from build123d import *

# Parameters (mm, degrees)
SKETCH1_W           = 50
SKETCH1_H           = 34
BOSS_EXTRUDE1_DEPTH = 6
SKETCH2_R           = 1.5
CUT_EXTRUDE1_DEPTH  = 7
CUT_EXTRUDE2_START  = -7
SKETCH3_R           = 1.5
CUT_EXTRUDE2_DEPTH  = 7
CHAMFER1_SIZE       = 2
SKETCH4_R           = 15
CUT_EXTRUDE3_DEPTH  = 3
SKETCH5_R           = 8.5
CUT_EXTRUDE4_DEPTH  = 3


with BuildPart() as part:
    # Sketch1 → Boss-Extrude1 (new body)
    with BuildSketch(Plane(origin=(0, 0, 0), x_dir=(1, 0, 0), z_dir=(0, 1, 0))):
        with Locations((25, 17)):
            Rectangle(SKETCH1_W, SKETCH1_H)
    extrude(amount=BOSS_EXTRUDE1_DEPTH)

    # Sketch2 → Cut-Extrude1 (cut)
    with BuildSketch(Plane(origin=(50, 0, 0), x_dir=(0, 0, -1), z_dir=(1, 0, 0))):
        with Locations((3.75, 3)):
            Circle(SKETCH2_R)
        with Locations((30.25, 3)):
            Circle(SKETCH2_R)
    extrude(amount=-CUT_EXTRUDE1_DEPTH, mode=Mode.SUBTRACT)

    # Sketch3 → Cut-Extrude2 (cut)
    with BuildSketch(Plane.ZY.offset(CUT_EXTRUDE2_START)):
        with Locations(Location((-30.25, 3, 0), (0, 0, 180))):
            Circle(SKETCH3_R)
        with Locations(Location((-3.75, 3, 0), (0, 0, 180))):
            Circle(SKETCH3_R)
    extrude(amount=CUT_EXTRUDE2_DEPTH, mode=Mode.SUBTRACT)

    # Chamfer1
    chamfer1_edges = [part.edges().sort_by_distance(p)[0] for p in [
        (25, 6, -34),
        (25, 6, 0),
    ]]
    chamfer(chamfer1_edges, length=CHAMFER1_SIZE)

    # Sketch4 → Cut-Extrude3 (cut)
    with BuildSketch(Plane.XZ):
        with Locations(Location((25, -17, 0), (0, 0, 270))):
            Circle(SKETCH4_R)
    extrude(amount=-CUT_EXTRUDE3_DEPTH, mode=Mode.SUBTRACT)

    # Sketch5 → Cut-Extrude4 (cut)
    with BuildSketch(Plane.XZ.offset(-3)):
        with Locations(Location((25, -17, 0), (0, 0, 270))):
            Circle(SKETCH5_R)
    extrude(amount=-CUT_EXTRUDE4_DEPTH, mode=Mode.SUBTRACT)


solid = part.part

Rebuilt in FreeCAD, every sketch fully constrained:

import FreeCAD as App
import Part
import Sketcher

V = App.Vector
Q = App.Units.Quantity


def edges_at(feature, points):
    """Names of the edges that pass closest to the given points."""
    edges = feature.Shape.Edges
    near = lambda p: min(range(len(edges)), key=lambda i: edges[i].distToShape(Part.Vertex(*p))[0])
    return sorted({f"Edge{near(p) + 1}" for p in points})

doc = App.newDocument("Part")
params = doc.addObject("Spreadsheet::Sheet", "Params")
for row, (alias, value) in enumerate([
    ("sketch1_width", "50 mm"),
    ("sketch1_height", "34 mm"),
    ("pad1_length", "6 mm"),
    ("sketch2_diameter", "3 mm"),
    ("pocket1_length", "7 mm"),
    ("sketch3_diameter", "3 mm"),
    ("pocket2_length", "7 mm"),
    ("chamfer_size", "2 mm"),
    ("sketch4_diameter", "30 mm"),
    ("pocket3_length", "3 mm"),
    ("sketch5_diameter", "17 mm"),
    ("pocket4_length", "3 mm"),
], start=1):
    params.set(f"A{row}", alias)
    params.set(f"B{row}", "=" + value)
    params.setAlias(f"B{row}", alias)

body = doc.addObject("PartDesign::Body", "Body")

# Sketch on XZ plane
sketch1 = doc.addObject("Sketcher::SketchObject", "Sketch")
body.addObject(sketch1)
sketch1.AttachmentSupport = (doc.XZ_Plane, [""])
sketch1.MapMode = "FlatFace"
sketch1.addGeometry(Part.LineSegment(V(0, -34, 0), V(0, 0, 0)), False)
sketch1.addGeometry(Part.LineSegment(V(0, 0, 0), V(50, 0, 0)), False)
sketch1.addGeometry(Part.LineSegment(V(50, 0, 0), V(50, -34, 0)), False)
sketch1.addGeometry(Part.LineSegment(V(50, -34, 0), V(0, -34, 0)), False)
sketch1.addConstraint(Sketcher.Constraint("Coincident", 0, 2, 1, 1))
sketch1.addConstraint(Sketcher.Constraint("Coincident", 1, 2, 2, 1))
sketch1.addConstraint(Sketcher.Constraint("Coincident", 2, 2, 3, 1))
sketch1.addConstraint(Sketcher.Constraint("Coincident", 3, 2, 0, 1))
sketch1.addConstraint(Sketcher.Constraint("Vertical", 0))
sketch1.addConstraint(Sketcher.Constraint("Horizontal", 1))
sketch1.addConstraint(Sketcher.Constraint("Vertical", 2))
sketch1.addConstraint(Sketcher.Constraint("Horizontal", 3))
sketch1.addConstraint(Sketcher.Constraint("Coincident", 0, 2, -1, 1))
sketch1.addConstraint(Sketcher.Constraint("DistanceX", 1, 1, 1, 2, Q("50 mm")))
sketch1.addConstraint(Sketcher.Constraint("DistanceY", 0, 1, 0, 2, Q("34 mm")))
sketch1.setExpression("Constraints[9]", "Params.sketch1_width")
sketch1.setExpression("Constraints[10]", "Params.sketch1_height")
pad1 = doc.addObject("PartDesign::Pad", "Pad")
body.addObject(pad1)
pad1.Profile = sketch1
pad1.setExpression("Length", "Params.pad1_length")
pad1.Reversed = True

# Sketch on YZ plane
sketch2 = doc.addObject("Sketcher::SketchObject", "Sketch001")
body.addObject(sketch2)
sketch2.AttachmentSupport = (doc.YZ_Plane, [""])
sketch2.MapMode = "FlatFace"
sketch2.AttachmentOffset = App.Placement(V(0, 0, 50), App.Rotation())
sketch2.addGeometry(Part.Circle(V(3, -3.8, 0), V(0, 0, 1), 1.5), False)
sketch2.addGeometry(Part.Circle(V(3, -30.2, 0), V(0, 0, 1), 1.5), False)
sketch2.addConstraint(Sketcher.Constraint("Equal", 0, 1))
sketch2.addConstraint(Sketcher.Constraint("Vertical", 0, 3, 1, 3))
sketch2.addConstraint(Sketcher.Constraint("Diameter", 0, Q("3 mm")))
sketch2.addConstraint(Sketcher.Constraint("DistanceX", -1, 1, 0, 3, Q("3 mm")))
sketch2.addConstraint(Sketcher.Constraint("DistanceY", 1, 3, 0, 3, Q("26.5 mm")))
sketch2.addConstraint(Sketcher.Constraint("DistanceY", 0, 3, -1, 1, Q("3.75 mm")))
sketch2.setExpression("Constraints[2]", "Params.sketch2_diameter")
pocket1 = doc.addObject("PartDesign::Pocket", "Pocket")
body.addObject(pocket1)
pocket1.Profile = sketch2
pocket1.setExpression("Length", "Params.pocket1_length")

# Sketch on YZ plane
sketch3 = doc.addObject("Sketcher::SketchObject", "Sketch002")
body.addObject(sketch3)
sketch3.AttachmentSupport = (doc.YZ_Plane, [""])
sketch3.MapMode = "FlatFace"
sketch3.AttachmentOffset = App.Placement(V(0, 0, 7), App.Rotation())
sketch3.addGeometry(Part.Circle(V(3, -30.2, 0), V(0, 0, 1), 1.5), False)
sketch3.addGeometry(Part.Circle(V(3, -3.8, 0), V(0, 0, 1), 1.5), False)
sketch3.addConstraint(Sketcher.Constraint("Equal", 0, 1))
sketch3.addConstraint(Sketcher.Constraint("Vertical", 0, 3, 1, 3))
sketch3.addConstraint(Sketcher.Constraint("Diameter", 0, Q("3 mm")))
sketch3.addConstraint(Sketcher.Constraint("DistanceX", -1, 1, 0, 3, Q("3 mm")))
sketch3.addConstraint(Sketcher.Constraint("DistanceY", 0, 3, 1, 3, Q("26.5 mm")))
sketch3.addConstraint(Sketcher.Constraint("DistanceY", 0, 3, -1, 1, Q("30.25 mm")))
sketch3.setExpression("Constraints[2]", "Params.sketch3_diameter")
pocket2 = doc.addObject("PartDesign::Pocket", "Pocket001")
body.addObject(pocket2)
pocket2.Profile = sketch3
pocket2.setExpression("Length", "Params.pocket2_length")
doc.recompute()

chamfer = doc.addObject("PartDesign::Chamfer", "Chamfer")
body.addObject(chamfer)
chamfer.Base = (pocket2, edges_at(pocket2, [(25, 6, -34), (25, 6, 0)]))
chamfer.setExpression("Size", "Params.chamfer_size")

# Sketch on XZ plane
sketch4 = doc.addObject("Sketcher::SketchObject", "Sketch003")
body.addObject(sketch4)
sketch4.AttachmentSupport = (doc.XZ_Plane, [""])
sketch4.MapMode = "FlatFace"
sketch4.addGeometry(Part.Circle(V(25, -17, 0), V(0, 0, 1), 15), False)
sketch4.addConstraint(Sketcher.Constraint("Diameter", 0, Q("30 mm")))
sketch4.addConstraint(Sketcher.Constraint("DistanceX", -1, 1, 0, 3, Q("25 mm")))
sketch4.addConstraint(Sketcher.Constraint("DistanceY", 0, 3, -1, 1, Q("17 mm")))
sketch4.setExpression("Constraints[0]", "Params.sketch4_diameter")
pocket3 = doc.addObject("PartDesign::Pocket", "Pocket002")
body.addObject(pocket3)
pocket3.Profile = sketch4
pocket3.setExpression("Length", "Params.pocket3_length")

# Sketch on XZ plane
sketch5 = doc.addObject("Sketcher::SketchObject", "Sketch004")
body.addObject(sketch5)
sketch5.AttachmentSupport = (doc.XZ_Plane, [""])
sketch5.MapMode = "FlatFace"
sketch5.AttachmentOffset = App.Placement(V(0, 0, -3), App.Rotation())
sketch5.addGeometry(Part.Circle(V(25, -17, 0), V(0, 0, 1), 8), False)
sketch5.addConstraint(Sketcher.Constraint("Diameter", 0, Q("17 mm")))
sketch5.addConstraint(Sketcher.Constraint("DistanceX", -1, 1, 0, 3, Q("25 mm")))
sketch5.addConstraint(Sketcher.Constraint("DistanceY", 0, 3, -1, 1, Q("17 mm")))
sketch5.setExpression("Constraints[0]", "Params.sketch5_diameter")
pocket4 = doc.addObject("PartDesign::Pocket", "Pocket003")
body.addObject(pocket4)
pocket4.Profile = sketch5
pocket4.setExpression("Length", "Params.pocket4_length")

doc.recompute()
